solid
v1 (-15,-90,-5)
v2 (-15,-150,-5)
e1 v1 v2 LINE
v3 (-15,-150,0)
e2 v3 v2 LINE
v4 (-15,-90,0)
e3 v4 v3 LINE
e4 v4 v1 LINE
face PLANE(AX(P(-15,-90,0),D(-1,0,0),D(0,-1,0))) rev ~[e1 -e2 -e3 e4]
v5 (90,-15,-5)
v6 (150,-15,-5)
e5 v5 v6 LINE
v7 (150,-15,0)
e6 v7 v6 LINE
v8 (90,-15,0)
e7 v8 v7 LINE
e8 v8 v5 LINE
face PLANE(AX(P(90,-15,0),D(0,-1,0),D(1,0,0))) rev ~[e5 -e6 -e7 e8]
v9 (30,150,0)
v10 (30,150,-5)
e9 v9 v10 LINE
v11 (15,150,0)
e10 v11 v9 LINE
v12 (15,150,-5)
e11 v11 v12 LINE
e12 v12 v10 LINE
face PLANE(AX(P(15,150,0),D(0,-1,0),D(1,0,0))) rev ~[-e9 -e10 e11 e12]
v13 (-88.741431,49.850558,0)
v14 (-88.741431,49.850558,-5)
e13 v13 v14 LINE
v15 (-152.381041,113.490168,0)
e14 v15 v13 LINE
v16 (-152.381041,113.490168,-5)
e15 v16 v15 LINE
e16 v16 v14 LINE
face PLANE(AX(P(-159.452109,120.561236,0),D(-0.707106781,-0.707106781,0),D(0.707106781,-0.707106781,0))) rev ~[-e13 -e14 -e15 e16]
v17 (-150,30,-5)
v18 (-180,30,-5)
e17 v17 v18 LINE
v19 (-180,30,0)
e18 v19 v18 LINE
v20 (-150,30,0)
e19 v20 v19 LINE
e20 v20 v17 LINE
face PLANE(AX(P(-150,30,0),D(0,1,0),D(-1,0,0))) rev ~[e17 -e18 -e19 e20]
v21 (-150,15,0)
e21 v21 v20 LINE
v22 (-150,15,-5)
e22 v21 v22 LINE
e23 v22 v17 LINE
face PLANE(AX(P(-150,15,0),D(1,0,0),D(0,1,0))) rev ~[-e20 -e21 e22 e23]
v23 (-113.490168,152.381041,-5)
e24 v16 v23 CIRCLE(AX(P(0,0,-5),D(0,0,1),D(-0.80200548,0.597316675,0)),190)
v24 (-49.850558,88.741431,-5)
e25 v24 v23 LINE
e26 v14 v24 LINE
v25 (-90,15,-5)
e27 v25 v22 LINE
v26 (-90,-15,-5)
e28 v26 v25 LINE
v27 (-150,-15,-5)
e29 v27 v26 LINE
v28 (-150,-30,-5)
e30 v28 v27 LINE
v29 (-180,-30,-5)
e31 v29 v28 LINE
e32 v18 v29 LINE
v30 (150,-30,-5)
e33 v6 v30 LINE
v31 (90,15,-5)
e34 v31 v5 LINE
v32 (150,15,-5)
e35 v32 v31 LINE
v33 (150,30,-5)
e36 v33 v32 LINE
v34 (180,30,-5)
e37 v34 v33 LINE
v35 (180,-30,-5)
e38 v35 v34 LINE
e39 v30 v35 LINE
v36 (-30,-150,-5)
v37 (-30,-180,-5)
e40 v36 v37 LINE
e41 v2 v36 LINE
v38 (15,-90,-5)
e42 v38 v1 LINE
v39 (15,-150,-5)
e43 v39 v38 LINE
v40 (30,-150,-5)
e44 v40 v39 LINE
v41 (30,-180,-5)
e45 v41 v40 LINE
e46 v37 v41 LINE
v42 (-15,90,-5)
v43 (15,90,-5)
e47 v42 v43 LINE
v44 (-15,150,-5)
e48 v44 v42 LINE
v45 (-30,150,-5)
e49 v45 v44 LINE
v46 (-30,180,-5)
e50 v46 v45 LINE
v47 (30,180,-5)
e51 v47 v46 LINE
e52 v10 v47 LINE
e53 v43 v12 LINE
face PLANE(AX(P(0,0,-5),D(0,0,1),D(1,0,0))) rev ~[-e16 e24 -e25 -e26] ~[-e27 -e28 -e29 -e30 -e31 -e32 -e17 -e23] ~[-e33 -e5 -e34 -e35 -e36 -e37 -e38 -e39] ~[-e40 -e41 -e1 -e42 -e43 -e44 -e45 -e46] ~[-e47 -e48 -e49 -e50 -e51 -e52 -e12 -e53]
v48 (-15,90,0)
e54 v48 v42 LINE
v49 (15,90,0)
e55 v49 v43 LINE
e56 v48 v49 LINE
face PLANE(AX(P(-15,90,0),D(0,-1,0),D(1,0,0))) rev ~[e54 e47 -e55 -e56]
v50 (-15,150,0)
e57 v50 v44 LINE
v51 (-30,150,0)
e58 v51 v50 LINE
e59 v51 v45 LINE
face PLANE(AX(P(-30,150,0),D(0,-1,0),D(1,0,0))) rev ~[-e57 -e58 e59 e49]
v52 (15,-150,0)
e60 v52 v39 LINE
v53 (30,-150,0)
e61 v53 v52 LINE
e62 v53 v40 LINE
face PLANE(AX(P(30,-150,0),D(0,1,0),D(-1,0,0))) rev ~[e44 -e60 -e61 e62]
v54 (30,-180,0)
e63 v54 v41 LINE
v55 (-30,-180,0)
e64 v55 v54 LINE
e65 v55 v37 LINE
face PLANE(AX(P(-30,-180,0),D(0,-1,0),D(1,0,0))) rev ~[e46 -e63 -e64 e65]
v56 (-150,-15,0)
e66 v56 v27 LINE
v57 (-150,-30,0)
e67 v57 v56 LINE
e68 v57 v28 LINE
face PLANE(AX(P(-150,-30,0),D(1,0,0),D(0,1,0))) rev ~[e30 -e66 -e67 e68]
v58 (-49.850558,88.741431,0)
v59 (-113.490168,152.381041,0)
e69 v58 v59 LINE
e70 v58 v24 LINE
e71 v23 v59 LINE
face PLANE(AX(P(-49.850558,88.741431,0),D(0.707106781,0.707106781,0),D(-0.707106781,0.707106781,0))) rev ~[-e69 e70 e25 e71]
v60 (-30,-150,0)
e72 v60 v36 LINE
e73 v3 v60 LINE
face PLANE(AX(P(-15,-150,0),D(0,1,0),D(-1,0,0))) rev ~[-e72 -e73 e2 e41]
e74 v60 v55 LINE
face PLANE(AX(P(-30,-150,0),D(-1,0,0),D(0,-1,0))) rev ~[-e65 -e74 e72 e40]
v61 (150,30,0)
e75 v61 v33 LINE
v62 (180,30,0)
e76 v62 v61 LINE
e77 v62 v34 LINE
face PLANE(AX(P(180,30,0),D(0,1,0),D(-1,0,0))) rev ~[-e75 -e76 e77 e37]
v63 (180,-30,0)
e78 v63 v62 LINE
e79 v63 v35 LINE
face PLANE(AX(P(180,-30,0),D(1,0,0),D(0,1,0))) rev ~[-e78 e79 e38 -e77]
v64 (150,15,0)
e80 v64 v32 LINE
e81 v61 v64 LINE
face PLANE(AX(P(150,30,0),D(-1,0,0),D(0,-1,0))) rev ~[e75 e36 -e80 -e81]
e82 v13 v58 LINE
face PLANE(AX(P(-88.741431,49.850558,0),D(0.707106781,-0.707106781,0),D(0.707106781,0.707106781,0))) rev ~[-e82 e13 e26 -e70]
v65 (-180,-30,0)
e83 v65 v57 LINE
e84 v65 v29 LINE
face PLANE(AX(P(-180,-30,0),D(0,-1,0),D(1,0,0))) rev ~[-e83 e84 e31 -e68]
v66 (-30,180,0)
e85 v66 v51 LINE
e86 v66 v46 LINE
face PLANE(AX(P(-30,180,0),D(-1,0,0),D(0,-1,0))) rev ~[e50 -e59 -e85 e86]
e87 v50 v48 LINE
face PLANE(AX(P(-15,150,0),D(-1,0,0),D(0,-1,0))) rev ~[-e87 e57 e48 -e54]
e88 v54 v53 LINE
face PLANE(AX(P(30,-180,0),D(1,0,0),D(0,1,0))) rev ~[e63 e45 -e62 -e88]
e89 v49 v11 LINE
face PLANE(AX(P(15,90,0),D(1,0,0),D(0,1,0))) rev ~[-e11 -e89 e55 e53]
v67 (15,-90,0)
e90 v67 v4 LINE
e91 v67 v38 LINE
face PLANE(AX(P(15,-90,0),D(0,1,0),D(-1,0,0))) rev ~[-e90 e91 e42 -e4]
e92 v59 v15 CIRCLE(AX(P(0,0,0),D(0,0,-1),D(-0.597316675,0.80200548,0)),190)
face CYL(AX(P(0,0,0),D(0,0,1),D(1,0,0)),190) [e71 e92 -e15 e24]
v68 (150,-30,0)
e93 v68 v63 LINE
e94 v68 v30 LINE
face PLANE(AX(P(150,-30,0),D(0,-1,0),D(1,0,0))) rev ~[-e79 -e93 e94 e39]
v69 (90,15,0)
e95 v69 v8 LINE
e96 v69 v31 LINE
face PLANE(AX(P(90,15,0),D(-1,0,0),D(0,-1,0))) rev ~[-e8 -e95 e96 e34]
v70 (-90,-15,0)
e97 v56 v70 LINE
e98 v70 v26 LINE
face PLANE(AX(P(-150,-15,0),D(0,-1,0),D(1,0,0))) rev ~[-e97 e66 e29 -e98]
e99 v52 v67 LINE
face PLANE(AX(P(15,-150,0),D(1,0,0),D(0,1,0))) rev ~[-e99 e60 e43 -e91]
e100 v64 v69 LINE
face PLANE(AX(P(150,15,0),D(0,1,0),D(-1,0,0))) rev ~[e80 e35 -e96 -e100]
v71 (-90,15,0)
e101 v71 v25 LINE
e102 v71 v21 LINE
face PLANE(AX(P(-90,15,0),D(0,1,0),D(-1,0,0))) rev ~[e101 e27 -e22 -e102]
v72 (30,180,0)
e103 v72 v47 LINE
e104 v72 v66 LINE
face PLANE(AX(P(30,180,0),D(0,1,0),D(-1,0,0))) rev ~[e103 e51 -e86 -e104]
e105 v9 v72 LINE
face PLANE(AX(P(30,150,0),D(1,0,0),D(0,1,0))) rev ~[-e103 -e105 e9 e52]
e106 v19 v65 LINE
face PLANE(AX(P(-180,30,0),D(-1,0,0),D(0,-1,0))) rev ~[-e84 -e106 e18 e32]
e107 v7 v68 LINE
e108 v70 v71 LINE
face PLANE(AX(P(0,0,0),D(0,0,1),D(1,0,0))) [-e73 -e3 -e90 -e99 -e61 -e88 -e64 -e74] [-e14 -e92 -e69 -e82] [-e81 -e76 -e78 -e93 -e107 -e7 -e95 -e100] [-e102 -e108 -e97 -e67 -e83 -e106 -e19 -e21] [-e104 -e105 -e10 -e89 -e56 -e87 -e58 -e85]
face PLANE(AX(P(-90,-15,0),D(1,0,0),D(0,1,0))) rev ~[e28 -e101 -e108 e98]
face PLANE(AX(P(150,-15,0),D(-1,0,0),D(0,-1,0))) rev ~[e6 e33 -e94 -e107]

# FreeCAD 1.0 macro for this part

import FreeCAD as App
import Part
import Sketcher

V = App.Vector
Q = App.Units.Quantity

doc = App.newDocument("Part")
params = doc.addObject("Spreadsheet::Sheet", "Params")
for row, (alias, value) in enumerate([
    ("sketch1_diameter", "380 mm"),
    ("pad1_length", "5 mm"),
    ("sketch2_width", "30 mm"),
    ("sketch2_width2", "15 mm"),
    ("pocket1_length", "5 mm"),
    ("sketch3_length", "55 mm"),
    ("sketch3_length2", "100 mm"),
    ("pocket2_length", "10 mm"),
], start=1):
    params.set(f"A{row}", alias)
    params.set(f"B{row}", "=" + value)
    params.setAlias(f"B{row}", alias)

body = doc.addObject("PartDesign::Body", "Body")

# Sketch on XY plane
sketch1 = body.newObject("Sketcher::SketchObject", "Sketch")
sketch1.AttachmentSupport = (doc.getObject("XY_Plane"), [""])
sketch1.MapMode = "FlatFace"
sketch1.addGeometry(Part.Circle(V(0, 0, 0), V(0, 0, 1), 190), False)
sketch1.addConstraint(Sketcher.Constraint("Coincident", 0, 3, -1, 1))
sketch1.addConstraint(Sketcher.Constraint("Diameter", 0, Q("380 mm")))
sketch1.setExpression("Constraints[1]", "Params.sketch1_diameter")
pad1 = body.newObject("PartDesign::Pad", "Pad")
pad1.Profile = sketch1
pad1.setExpression("Length", "Params.pad1_length")
pad1.Reversed = True

# Sketch on XY plane
sketch2 = body.newObject("Sketcher::SketchObject", "Sketch001")
sketch2.AttachmentSupport = (doc.getObject("XY_Plane"), [""])
sketch2.MapMode = "FlatFace"
sketch2.addGeometry(Part.LineSegment(V(-15, 150, 0), V(-15, 90, 0)), False)
sketch2.addGeometry(Part.LineSegment(V(-15, 90, 0), V(15, 90, 0)), False)
sketch2.addGeometry(Part.LineSegment(V(15, 90, 0), V(15, 150, 0)), False)
sketch2.addGeometry(Part.LineSegment(V(15, 150, 0), V(30, 150, 0)), False)
sketch2.addGeometry(Part.LineSegment(V(30, 150, 0), V(30, 180, 0)), False)
sketch2.addGeometry(Part.LineSegment(V(30, 180, 0), V(-30, 180, 0)), False)
sketch2.addGeometry(Part.LineSegment(V(-30, 180, 0), V(-30, 150, 0)), False)
sketch2.addGeometry(Part.LineSegment(V(-30, 150, 0), V(-15, 150, 0)), False)
sketch2.addGeometry(Part.LineSegment(V(30, -180, 0), V(30, -150, 0)), False)
sketch2.addGeometry(Part.LineSegment(V(30, -150, 0), V(15, -150, 0)), False)
sketch2.addGeometry(Part.LineSegment(V(15, -150, 0), V(15, -90, 0)), False)
sketch2.addGeometry(Part.LineSegment(V(15, -90, 0), V(-15, -90, 0)), False)
sketch2.addGeometry(Part.LineSegment(V(-15, -90, 0), V(-15, -150, 0)), False)
sketch2.addGeometry(Part.LineSegment(V(-15, -150, 0), V(-30, -150, 0)), False)
sketch2.addGeometry(Part.LineSegment(V(-30, -150, 0), V(-30, -180, 0)), False)
sketch2.addGeometry(Part.LineSegment(V(-30, -180, 0), V(30, -180, 0)), False)
sketch2.addGeometry(Part.LineSegment(V(180, 30, 0), V(150, 30, 0)), False)
sketch2.addGeometry(Part.LineSegment(V(150, 30, 0), V(150, 15, 0)), False)
sketch2.addGeometry(Part.LineSegment(V(150, 15, 0), V(90, 15, 0)), False)
sketch2.addGeometry(Part.LineSegment(V(90, 15, 0), V(90, -15, 0)), False)
sketch2.addGeometry(Part.LineSegment(V(90, -15, 0), V(150, -15, 0)), False)
sketch2.addGeometry(Part.LineSegment(V(150, -15, 0), V(150, -30, 0)), False)
sketch2.addGeometry(Part.LineSegment(V(150, -30, 0), V(180, -30, 0)), False)
sketch2.addGeometry(Part.LineSegment(V(180, -30, 0), V(180, 30, 0)), False)
sketch2.addGeometry(Part.LineSegment(V(-180, -30, 0), V(-150, -30, 0)), False)
sketch2.addGeometry(Part.LineSegment(V(-150, -30, 0), V(-150, -15, 0)), False)
sketch2.addGeometry(Part.LineSegment(V(-150, -15, 0), V(-90, -15, 0)), False)
sketch2.addGeometry(Part.LineSegment(V(-90, -15, 0), V(-90, 15, 0)), False)
sketch2.addGeometry(Part.LineSegment(V(-90, 15, 0), V(-150, 15, 0)), False)
sketch2.addGeometry(Part.LineSegment(V(-150, 15, 0), V(-150, 30, 0)), False)
sketch2.addGeometry(Part.LineSegment(V(-150, 30, 0), V(-180, 30, 0)), False)
sketch2.addGeometry(Part.LineSegment(V(-180, 30, 0), V(-180, -30, 0)), False)
sketch2.addConstraint(Sketcher.Constraint("Coincident", 0, 2, 1, 1))
sketch2.addConstraint(Sketcher.Constraint("Coincident", 1, 2, 2, 1))
sketch2.addConstraint(Sketcher.Constraint("Coincident", 2, 2, 3, 1))
sketch2.addConstraint(Sketcher.Constraint("Coincident", 3, 2, 4, 1))
sketch2.addConstraint(Sketcher.Constraint("Coincident", 4, 2, 5, 1))
sketch2.addConstraint(Sketcher.Constraint("Coincident", 5, 2, 6, 1))
sketch2.addConstraint(Sketcher.Constraint("Coincident", 6, 2, 7, 1))
sketch2.addConstraint(Sketcher.Constraint("Coincident", 7, 2, 0, 1))
sketch2.addConstraint(Sketcher.Constraint("Coincident", 8, 2, 9, 1))
sketch2.addConstraint(Sketcher.Constraint("Coincident", 9, 2, 10, 1))
sketch2.addConstraint(Sketcher.Constraint("Coincident", 10, 2, 11, 1))
sketch2.addConstraint(Sketcher.Constraint("Coincident", 11, 2, 12, 1))
sketch2.addConstraint(Sketcher.Constraint("Coincident", 12, 2, 13, 1))
sketch2.addConstraint(Sketcher.Constraint("Coincident", 13, 2, 14, 1))
sketch2.addConstraint(Sketcher.Constraint("Coincident", 14, 2, 15, 1))
sketch2.addConstraint(Sketcher.Constraint("Coincident", 15, 2, 8, 1))
sketch2.addConstraint(Sketcher.Constraint("Coincident", 16, 2, 17, 1))
sketch2.addConstraint(Sketcher.Constraint("Coincident", 17, 2, 18, 1))
sketch2.addConstraint(Sketcher.Constraint("Coincident", 18, 2, 19, 1))
sketch2.addConstraint(Sketcher.Constraint("Coincident", 19, 2, 20, 1))
sketch2.addConstraint(Sketcher.Constraint("Coincident", 20, 2, 21, 1))
sketch2.addConstraint(Sketcher.Constraint("Coincident", 21, 2, 22, 1))
sketch2.addConstraint(Sketcher.Constraint("Coincident", 22, 2, 23, 1))
sketch2.addConstraint(Sketcher.Constraint("Coincident", 23, 2, 16, 1))
sketch2.addConstraint(Sketcher.Constraint("Coincident", 24, 2, 25, 1))
sketch2.addConstraint(Sketcher.Constraint("Coincident", 25, 2, 26, 1))
sketch2.addConstraint(Sketcher.Constraint("Coincident", 26, 2, 27, 1))
sketch2.addConstraint(Sketcher.Constraint("Coincident", 27, 2, 28, 1))
sketch2.addConstraint(Sketcher.Constraint("Coincident", 28, 2, 29, 1))
sketch2.addConstraint(Sketcher.Constraint("Coincident", 29, 2, 30, 1))
sketch2.addConstraint(Sketcher.Constraint("Coincident", 30, 2, 31, 1))
sketch2.addConstraint(Sketcher.Constraint("Coincident", 31, 2, 24, 1))
sketch2.addConstraint(Sketcher.Constraint("Vertical", 0))
sketch2.addConstraint(Sketcher.Constraint("Horizontal", 1))
sketch2.addConstraint(Sketcher.Constraint("Vertical", 2))
sketch2.addConstraint(Sketcher.Constraint("Horizontal", 3))
sketch2.addConstraint(Sketcher.Constraint("Vertical", 4))
sketch2.addConstraint(Sketcher.Constraint("Horizontal", 5))
sketch2.addConstraint(Sketcher.Constraint("Vertical", 6))
sketch2.addConstraint(Sketcher.Constraint("Horizontal", 7))
sketch2.addConstraint(Sketcher.Constraint("Vertical", 8))
sketch2.addConstraint(Sketcher.Constraint("Horizontal", 9))
sketch2.addConstraint(Sketcher.Constraint("Vertical", 10))
sketch2.addConstraint(Sketcher.Constraint("Horizontal", 11))
sketch2.addConstraint(Sketcher.Constraint("Vertical", 12))
sketch2.addConstraint(Sketcher.Constraint("Horizontal", 13))
sketch2.addConstraint(Sketcher.Constraint("Vertical", 14))
sketch2.addConstraint(Sketcher.Constraint("Horizontal", 15))
sketch2.addConstraint(Sketcher.Constraint("Horizontal", 16))
sketch2.addConstraint(Sketcher.Constraint("Vertical", 17))
sketch2.addConstraint(Sketcher.Constraint("Horizontal", 18))
sketch2.addConstraint(Sketcher.Constraint("Vertical", 19))
sketch2.addConstraint(Sketcher.Constraint("Horizontal", 20))
sketch2.addConstraint(Sketcher.Constraint("Vertical", 21))
sketch2.addConstraint(Sketcher.Constraint("Horizontal", 22))
sketch2.addConstraint(Sketcher.Constraint("Vertical", 23))
sketch2.addConstraint(Sketcher.Constraint("Horizontal", 24))
sketch2.addConstraint(Sketcher.Constraint("Vertical", 25))
sketch2.addConstraint(Sketcher.Constraint("Horizontal", 26))
sketch2.addConstraint(Sketcher.Constraint("Vertical", 27))
sketch2.addConstraint(Sketcher.Constraint("Horizontal", 28))
sketch2.addConstraint(Sketcher.Constraint("Vertical", 29))
sketch2.addConstraint(Sketcher.Constraint("Horizontal", 30))
sketch2.addConstraint(Sketcher.Constraint("Vertical", 31))
sketch2.addConstraint(Sketcher.Constraint("Symmetric", 6, 2, 8, 2, -1, 1))
sketch2.addConstraint(Sketcher.Constraint("Symmetric", 0, 2, 10, 2, -1, 1))
sketch2.addConstraint(Sketcher.Constraint("Symmetric", 2, 2, 12, 2, -1, 1))
sketch2.addConstraint(Sketcher.Constraint("Symmetric", 4, 2, 14, 2, -1, 1))
sketch2.addConstraint(Sketcher.Constraint("Symmetric", 16, 2, 24, 2, -1, 1))
sketch2.addConstraint(Sketcher.Constraint("Symmetric", 18, 2, 26, 2, -1, 1))
sketch2.addConstraint(Sketcher.Constraint("Symmetric", 20, 2, 28, 2, -1, 1))
sketch2.addConstraint(Sketcher.Constraint("Symmetric", 22, 2, 30, 2, -1, 1))
sketch2.addConstraint(Sketcher.Constraint("Symmetric", 3, 2, 6, 2, -2))
sketch2.addConstraint(Sketcher.Constraint("Symmetric", 21, 2, 24, 2, -2))
sketch2.addConstraint(Sketcher.Constraint("Horizontal", 20, 2, 25, 2))
sketch2.addConstraint(Sketcher.Constraint("Vertical", 2, 2, 9, 2))
sketch2.addConstraint(Sketcher.Constraint("Equal", 11, 16))
sketch2.addConstraint(Sketcher.Constraint("Equal", 15, 18))
sketch2.addConstraint(Sketcher.Constraint("Equal", 28, 0))
sketch2.addConstraint(Sketcher.Constraint("Equal", 30, 4))
sketch2.addConstraint(Sketcher.Constraint("Equal", 13, 17))
sketch2.addConstraint(Sketcher.Constraint("Equal", 14, 19))
sketch2.addConstraint(Sketcher.Constraint("DistanceX", 1, 1, 1, 2, Q("30 mm")))
sketch2.addConstraint(Sketcher.Constraint("DistanceX", 3, 1, 3, 2, Q("15 mm")))
sketch2.addConstraint(Sketcher.Constraint("DistanceY", -1, 1, 0, 2, Q("90 mm")))
sketch2.addConstraint(Sketcher.Constraint("DistanceX", -1, 1, 16, 2, Q("150 mm")))
sketch2.setExpression("Constraints[82]", "Params.sketch2_width")
sketch2.setExpression("Constraints[83]", "Params.sketch2_width2")
pocket1 = body.newObject("PartDesign::Pocket", "Pocket")
pocket1.Profile = sketch2
pocket1.setExpression("Length", "Params.pocket1_length")

# Sketch on XY plane
sketch3 = body.newObject("Sketcher::SketchObject", "Sketch002")
sketch3.AttachmentSupport = (doc.getObject("XY_Plane"), [""])
sketch3.MapMode = "FlatFace"
sketch3.addGeometry(Part.LineSegment(V(-89, 50, 0), V(-50, 89, 0)), False)
sketch3.addGeometry(Part.LineSegment(V(-50, 89, 0), V(-121, 159, 0)), False)
sketch3.addGeometry(Part.LineSegment(V(-121, 159, 0), V(-159, 121, 0)), False)
sketch3.addGeometry(Part.LineSegment(V(-159, 121, 0), V(-89, 50, 0)), False)
sketch3.addConstraint(Sketcher.Constraint("Coincident", 0, 2, 1, 1))
sketch3.addConstraint(Sketcher.Constraint("Coincident", 1, 2, 2, 1))
sketch3.addConstraint(Sketcher.Constraint("Coincident", 2, 2, 3, 1))
sketch3.addConstraint(Sketcher.Constraint("Coincident", 3, 2, 0, 1))
sketch3.addConstraint(Sketcher.Constraint("Perpendicular", 0, 1))
sketch3.addConstraint(Sketcher.Constraint("Perpendicular", 1, 2))
sketch3.addConstraint(Sketcher.Constraint("Perpendicular", 2, 3))
sketch3.addConstraint(Sketcher.Constraint("Angle", 0, Q("45 deg")))
sketch3.addConstraint(Sketcher.Constraint("Distance", 0, Q("55 mm")))
sketch3.addConstraint(Sketcher.Constraint("Distance", 1, Q("100 mm")))
sketch3.addConstraint(Sketcher.Constraint("DistanceY", -1, 1, 0, 2, Q("88.741431 mm")))
sketch3.addConstraint(Sketcher.Constraint("DistanceX", 2, 2, -1, 1, Q("159.452109 mm")))
sketch3.setExpression("Constraints[8]", "Params.sketch3_length")
sketch3.setExpression("Constraints[9]", "Params.sketch3_length2")
pocket2 = body.newObject("PartDesign::Pocket", "Pocket001")
pocket2.Profile = sketch3
pocket2.setExpression("Length", "Params.pocket2_length")

doc.recompute()
